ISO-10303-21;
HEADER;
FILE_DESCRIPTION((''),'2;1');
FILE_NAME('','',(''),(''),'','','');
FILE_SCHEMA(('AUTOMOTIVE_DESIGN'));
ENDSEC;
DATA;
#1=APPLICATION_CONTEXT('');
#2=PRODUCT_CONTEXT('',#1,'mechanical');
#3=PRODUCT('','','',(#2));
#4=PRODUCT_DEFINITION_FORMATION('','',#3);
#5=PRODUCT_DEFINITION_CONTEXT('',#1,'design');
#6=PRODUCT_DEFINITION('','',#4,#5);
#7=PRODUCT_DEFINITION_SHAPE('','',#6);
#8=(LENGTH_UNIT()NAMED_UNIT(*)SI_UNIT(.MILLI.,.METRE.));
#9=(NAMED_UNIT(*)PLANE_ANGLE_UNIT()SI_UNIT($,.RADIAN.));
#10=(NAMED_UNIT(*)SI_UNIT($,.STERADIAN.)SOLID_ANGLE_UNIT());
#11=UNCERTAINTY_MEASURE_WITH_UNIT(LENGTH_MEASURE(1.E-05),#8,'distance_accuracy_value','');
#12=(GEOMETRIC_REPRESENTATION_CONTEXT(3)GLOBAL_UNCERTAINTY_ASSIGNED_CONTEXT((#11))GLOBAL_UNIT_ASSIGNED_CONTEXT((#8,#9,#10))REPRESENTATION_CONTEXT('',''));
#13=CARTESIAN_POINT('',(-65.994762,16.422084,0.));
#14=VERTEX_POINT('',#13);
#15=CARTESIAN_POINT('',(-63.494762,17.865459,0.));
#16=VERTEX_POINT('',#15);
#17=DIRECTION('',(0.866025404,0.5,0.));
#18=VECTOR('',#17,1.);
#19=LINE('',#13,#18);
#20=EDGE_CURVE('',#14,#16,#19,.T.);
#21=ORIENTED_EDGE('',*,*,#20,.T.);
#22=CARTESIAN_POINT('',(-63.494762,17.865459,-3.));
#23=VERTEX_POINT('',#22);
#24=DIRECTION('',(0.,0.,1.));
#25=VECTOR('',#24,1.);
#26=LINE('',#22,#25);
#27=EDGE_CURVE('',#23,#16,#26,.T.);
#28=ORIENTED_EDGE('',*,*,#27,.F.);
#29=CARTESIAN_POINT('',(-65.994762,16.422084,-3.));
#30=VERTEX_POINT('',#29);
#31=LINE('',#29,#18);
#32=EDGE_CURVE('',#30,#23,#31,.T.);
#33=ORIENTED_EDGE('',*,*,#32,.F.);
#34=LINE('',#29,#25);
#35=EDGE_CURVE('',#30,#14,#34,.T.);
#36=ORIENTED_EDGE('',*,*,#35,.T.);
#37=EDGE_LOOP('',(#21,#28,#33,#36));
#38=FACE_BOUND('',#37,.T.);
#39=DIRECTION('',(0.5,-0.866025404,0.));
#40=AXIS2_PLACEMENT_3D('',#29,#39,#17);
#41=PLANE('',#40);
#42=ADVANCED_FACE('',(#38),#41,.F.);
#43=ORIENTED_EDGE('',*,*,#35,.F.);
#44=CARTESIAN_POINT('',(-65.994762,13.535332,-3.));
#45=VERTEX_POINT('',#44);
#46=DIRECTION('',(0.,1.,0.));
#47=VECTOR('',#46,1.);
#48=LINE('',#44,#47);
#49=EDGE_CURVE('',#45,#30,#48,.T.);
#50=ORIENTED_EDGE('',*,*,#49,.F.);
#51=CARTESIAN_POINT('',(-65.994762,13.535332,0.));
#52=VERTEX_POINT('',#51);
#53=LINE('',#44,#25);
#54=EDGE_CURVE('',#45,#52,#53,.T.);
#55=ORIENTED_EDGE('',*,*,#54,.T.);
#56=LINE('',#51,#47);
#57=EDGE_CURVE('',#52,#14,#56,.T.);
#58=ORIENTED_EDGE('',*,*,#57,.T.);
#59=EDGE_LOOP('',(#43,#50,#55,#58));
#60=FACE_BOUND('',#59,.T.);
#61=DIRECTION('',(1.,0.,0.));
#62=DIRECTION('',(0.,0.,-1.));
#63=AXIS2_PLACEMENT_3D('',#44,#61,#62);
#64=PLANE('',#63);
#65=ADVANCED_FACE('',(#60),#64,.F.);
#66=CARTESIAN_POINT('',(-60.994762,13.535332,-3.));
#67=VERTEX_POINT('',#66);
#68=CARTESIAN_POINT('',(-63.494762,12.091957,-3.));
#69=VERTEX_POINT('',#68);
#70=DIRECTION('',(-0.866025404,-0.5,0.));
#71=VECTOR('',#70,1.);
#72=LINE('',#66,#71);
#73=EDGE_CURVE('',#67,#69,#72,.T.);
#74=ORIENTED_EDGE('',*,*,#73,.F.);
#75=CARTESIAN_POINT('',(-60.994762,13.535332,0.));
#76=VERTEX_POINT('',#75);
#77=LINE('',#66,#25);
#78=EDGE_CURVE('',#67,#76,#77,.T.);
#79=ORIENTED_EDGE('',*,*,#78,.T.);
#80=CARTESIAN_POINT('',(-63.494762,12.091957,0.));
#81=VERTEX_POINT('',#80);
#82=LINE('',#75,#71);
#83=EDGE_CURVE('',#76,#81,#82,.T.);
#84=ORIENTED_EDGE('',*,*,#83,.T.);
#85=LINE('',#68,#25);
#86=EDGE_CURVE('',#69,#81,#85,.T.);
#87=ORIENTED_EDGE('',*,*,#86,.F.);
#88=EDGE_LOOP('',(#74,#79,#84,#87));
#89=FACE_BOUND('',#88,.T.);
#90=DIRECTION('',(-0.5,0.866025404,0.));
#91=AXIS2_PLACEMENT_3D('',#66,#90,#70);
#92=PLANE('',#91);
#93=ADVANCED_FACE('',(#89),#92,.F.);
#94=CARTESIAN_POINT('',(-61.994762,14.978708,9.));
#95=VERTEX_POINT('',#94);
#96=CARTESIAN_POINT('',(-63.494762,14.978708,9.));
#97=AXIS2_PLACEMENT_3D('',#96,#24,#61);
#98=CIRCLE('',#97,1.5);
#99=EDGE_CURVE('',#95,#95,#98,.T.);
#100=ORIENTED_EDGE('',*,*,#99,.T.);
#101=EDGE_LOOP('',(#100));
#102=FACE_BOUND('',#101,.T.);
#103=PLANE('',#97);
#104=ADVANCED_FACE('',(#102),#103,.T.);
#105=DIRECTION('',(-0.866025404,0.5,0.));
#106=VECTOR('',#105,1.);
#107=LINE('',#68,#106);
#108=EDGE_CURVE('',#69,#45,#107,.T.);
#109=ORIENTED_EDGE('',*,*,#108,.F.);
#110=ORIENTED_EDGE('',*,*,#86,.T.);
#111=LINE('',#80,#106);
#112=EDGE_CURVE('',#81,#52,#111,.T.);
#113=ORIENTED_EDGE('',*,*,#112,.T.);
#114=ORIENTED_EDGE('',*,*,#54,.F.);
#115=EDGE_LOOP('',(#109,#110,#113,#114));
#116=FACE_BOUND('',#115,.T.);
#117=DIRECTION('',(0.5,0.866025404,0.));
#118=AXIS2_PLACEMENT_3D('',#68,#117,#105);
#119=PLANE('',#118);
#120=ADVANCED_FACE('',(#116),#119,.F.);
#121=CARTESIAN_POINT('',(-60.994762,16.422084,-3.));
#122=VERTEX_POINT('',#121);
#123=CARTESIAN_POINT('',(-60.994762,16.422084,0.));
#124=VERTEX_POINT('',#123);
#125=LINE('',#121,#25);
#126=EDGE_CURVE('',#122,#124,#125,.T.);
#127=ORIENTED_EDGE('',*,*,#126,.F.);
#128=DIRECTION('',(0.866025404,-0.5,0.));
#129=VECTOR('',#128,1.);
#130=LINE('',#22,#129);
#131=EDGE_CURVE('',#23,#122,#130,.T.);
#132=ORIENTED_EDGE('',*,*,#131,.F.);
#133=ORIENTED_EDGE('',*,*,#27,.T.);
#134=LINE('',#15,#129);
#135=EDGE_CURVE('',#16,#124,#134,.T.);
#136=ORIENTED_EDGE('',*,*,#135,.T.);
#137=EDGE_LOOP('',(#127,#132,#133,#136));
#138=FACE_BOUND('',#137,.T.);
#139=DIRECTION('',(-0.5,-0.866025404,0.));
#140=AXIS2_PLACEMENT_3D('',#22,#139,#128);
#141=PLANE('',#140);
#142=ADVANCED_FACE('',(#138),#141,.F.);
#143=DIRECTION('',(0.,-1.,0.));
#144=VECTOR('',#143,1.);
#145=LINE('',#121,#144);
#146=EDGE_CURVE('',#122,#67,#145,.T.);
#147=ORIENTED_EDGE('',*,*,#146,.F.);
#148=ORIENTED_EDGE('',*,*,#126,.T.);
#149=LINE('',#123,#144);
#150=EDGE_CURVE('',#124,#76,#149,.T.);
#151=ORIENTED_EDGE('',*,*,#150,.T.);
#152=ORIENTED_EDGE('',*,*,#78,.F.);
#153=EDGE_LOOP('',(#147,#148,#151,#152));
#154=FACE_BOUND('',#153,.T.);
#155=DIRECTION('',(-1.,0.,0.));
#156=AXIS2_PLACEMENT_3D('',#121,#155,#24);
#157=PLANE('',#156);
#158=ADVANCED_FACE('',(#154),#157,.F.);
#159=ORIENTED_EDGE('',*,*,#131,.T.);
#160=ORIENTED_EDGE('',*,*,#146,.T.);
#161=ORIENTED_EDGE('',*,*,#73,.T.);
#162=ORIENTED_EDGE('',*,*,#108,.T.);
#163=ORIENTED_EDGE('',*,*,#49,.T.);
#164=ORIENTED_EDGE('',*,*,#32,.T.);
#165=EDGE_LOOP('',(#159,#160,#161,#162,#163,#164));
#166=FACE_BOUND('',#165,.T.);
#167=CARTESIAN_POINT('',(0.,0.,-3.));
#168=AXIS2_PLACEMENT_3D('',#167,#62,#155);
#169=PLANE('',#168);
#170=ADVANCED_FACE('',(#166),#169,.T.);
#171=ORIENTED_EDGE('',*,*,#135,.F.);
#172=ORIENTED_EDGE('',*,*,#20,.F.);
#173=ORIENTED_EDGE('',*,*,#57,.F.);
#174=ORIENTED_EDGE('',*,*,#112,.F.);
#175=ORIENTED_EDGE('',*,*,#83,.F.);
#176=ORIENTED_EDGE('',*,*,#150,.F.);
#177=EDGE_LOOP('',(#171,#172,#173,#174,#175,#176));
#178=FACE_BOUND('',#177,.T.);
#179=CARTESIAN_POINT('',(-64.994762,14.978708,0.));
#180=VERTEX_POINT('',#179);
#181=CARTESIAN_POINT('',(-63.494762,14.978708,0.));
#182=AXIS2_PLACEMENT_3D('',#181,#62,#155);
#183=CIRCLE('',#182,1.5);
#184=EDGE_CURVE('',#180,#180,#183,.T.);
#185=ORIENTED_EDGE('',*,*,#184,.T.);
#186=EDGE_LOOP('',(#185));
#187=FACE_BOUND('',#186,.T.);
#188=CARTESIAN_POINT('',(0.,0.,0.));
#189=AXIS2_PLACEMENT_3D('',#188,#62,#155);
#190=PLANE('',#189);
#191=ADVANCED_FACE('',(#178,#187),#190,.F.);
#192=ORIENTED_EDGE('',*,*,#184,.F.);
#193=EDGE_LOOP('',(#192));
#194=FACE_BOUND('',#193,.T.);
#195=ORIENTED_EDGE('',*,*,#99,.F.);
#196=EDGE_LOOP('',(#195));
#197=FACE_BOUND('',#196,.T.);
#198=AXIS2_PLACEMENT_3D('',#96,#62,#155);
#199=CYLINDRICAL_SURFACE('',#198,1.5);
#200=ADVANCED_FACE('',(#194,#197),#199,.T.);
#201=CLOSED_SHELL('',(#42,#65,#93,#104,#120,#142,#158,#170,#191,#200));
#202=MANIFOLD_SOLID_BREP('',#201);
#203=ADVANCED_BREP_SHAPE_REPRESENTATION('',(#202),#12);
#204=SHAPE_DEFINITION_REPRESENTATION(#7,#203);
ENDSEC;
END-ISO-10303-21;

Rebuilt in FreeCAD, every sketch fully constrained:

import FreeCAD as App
import Part
import Sketcher
from FreeCAD import Vector
Q = App.Units.Quantity

doc = App.newDocument("Part")
params = doc.addObject("Spreadsheet::Sheet", "Params")
for row, (alias, value) in enumerate([
    ("sketch1_diameter", "3 mm"),
    ("pad1_length", "9 mm"),
    ("pad2_length", "3 mm"),
], start=1):
    params.set(f"A{row}", alias)
    params.set(f"B{row}", "=" + value)
    params.setAlias(f"B{row}", alias)

body = doc.addObject("PartDesign::Body", "Body")

# Sketch on XY plane
sketch1 = body.newObject("Sketcher::SketchObject", "Sketch")
sketch1.AttachmentSupport = (doc.getObject("XY_Plane"), [""])
sketch1.MapMode = "FlatFace"
sketch1.addGeometry(Part.Circle(Vector(-63.5, 15, 0), Vector(0, 0, 1), 1.5), False)
sketch1.addConstraint([
    Sketcher.Constraint("Diameter", 0, 3.0),
    Sketcher.Constraint("DistanceX", 0, 3, -1, 1, 63.494762),
    Sketcher.Constraint("DistanceY", -1, 1, 0, 3, 14.978708),
])
sketch1.setExpression("Constraints[0]", "Params.sketch1_diameter")
pad1 = body.newObject("PartDesign::Pad", "Pad")
pad1.Profile = sketch1
pad1.setExpression("Length", "Params.pad1_length")

# Sketch on XY plane
sketch2 = body.newObject("Sketcher::SketchObject", "Sketch001")
sketch2.AttachmentSupport = (doc.getObject("XY_Plane"), [""])
sketch2.MapMode = "FlatFace"
sketch2.addGeometry([
    Part.LineSegment(Vector(-63.5, 12.1, 0), Vector(-66, 13.5, 0)),  # 0
    Part.LineSegment(Vector(-66, 13.5, 0), Vector(-66, 16.4, 0)),  # 1
    Part.LineSegment(Vector(-66, 16.4, 0), Vector(-63.5, 17.9, 0)),  # 2
    Part.LineSegment(Vector(-63.5, 17.9, 0), Vector(-61, 16.4, 0)),  # 3
    Part.LineSegment(Vector(-61, 16.4, 0), Vector(-61, 13.5, 0)),  # 4
    Part.LineSegment(Vector(-61, 13.5, 0), Vector(-63.5, 12.1, 0)),  # 5
], False)
sketch2.addConstraint([
    Sketcher.Constraint("Coincident", 0, 2, 1, 1),
    Sketcher.Constraint("Coincident", 1, 2, 2, 1),
    Sketcher.Constraint("Coincident", 2, 2, 3, 1),
    Sketcher.Constraint("Coincident", 3, 2, 4, 1),
    Sketcher.Constraint("Coincident", 4, 2, 5, 1),
    Sketcher.Constraint("Coincident", 5, 2, 0, 1),
    Sketcher.Constraint("Vertical", 1),
    Sketcher.Constraint("Vertical", 4),
    Sketcher.Constraint("Parallel", 0, 3),
    Sketcher.Constraint("Parallel", 2, 5),
    Sketcher.Constraint("Horizontal", 1, 2, 3, 2),
    Sketcher.Constraint("Horizontal", 0, 2, 4, 2),
    Sketcher.Constraint("Vertical", 2, 2, 5, 2),
    Sketcher.Constraint("Angle", 0, Q("150 deg")),
    Sketcher.Constraint("DistanceX", 1, 2, 3, 2, 5.0),
    Sketcher.Constraint("DistanceY", 1, 1, 1, 2, 2.886751),
    Sketcher.Constraint("DistanceX", 0, 2, -1, 1, 65.994762),
    Sketcher.Constraint("DistanceY", -1, 1, 2, 2, 17.865459),
])
pad2 = body.newObject("PartDesign::Pad", "Pad001")
pad2.Profile = sketch2
pad2.setExpression("Length", "Params.pad2_length")
pad2.Reversed = True

doc.recompute()
